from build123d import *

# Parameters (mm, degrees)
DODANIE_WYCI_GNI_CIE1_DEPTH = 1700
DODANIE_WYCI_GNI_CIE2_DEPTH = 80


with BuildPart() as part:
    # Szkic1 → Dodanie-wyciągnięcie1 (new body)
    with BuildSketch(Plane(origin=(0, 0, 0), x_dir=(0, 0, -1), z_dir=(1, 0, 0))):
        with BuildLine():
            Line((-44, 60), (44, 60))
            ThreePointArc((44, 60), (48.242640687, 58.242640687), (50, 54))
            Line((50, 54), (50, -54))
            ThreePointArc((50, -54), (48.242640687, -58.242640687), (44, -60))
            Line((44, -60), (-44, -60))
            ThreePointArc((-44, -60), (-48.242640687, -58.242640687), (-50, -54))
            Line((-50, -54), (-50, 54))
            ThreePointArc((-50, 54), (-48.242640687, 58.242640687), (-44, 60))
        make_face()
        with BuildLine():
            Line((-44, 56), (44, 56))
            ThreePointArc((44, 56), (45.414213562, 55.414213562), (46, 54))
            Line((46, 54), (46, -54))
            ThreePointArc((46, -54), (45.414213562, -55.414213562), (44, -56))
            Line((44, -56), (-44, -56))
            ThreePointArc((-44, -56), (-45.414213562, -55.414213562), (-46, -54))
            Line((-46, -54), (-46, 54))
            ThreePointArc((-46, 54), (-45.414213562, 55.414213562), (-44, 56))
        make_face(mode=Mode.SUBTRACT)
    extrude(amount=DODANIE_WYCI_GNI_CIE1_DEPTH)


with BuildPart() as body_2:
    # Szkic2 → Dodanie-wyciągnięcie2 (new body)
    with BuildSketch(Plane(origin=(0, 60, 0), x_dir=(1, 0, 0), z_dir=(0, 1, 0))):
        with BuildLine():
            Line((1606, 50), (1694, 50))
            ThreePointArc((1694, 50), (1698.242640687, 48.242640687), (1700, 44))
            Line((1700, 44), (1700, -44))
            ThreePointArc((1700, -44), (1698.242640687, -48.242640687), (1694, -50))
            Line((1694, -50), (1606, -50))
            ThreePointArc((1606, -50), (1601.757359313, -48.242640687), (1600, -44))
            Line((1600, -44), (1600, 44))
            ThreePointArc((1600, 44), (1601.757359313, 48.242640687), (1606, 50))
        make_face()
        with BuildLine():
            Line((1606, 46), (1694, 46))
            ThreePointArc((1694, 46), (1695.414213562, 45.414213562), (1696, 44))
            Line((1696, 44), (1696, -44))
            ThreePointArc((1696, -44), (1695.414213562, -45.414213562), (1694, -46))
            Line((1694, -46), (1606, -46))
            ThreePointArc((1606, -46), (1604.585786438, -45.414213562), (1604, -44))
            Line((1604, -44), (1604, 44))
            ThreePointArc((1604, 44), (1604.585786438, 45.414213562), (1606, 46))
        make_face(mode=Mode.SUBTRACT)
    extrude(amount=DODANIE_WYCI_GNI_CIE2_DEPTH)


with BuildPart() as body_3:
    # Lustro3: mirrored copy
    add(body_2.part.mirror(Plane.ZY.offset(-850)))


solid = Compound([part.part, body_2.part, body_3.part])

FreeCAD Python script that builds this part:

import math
import FreeCAD as App
import Part
import Sketcher

doc = App.newDocument("Part")
body = doc.addObject("PartDesign::Body", "Body")

# Sketch on YZ plane
sketch1 = doc.addObject("Sketcher::SketchObject", "Sketch")
body.addObject(sketch1)
sketch1.AttachmentSupport = (doc.YZ_Plane, [""])
sketch1.MapMode = "FlatFace"
sketch1.addGeometry([
    Part.LineSegment(App.Vector(60, -44, 0), App.Vector(60, 44, 0)),  # 0
    Part.ArcOfCircle(Part.Circle(App.Vector(54, 44, 0), App.Vector(0, 0, 1), 6), math.radians(0), math.radians(90)),  # 1
    Part.LineSegment(App.Vector(54, 50, 0), App.Vector(-54, 50, 0)),  # 2
    Part.ArcOfCircle(Part.Circle(App.Vector(-54, 44, 0), App.Vector(0, 0, 1), 6), math.radians(90), math.radians(180)),  # 3
    Part.LineSegment(App.Vector(-60, 44, 0), App.Vector(-60, -44, 0)),  # 4
    Part.ArcOfCircle(Part.Circle(App.Vector(-54, -44, 0), App.Vector(0, 0, 1), 6), math.radians(180), math.radians(270)),  # 5
    Part.LineSegment(App.Vector(-54, -50, 0), App.Vector(54, -50, 0)),  # 6
    Part.ArcOfCircle(Part.Circle(App.Vector(54, -44, 0), App.Vector(0, 0, 1), 6), math.radians(-90), math.radians(0)),  # 7
    Part.LineSegment(App.Vector(56, 44, 0), App.Vector(56, -44, 0)),  # 8
    Part.ArcOfCircle(Part.Circle(App.Vector(54, -44, 0), App.Vector(0, 0, 1), 2), math.radians(-90), math.radians(0)),  # 9
    Part.LineSegment(App.Vector(54, -46, 0), App.Vector(-54, -46, 0)),  # 10
    Part.ArcOfCircle(Part.Circle(App.Vector(-54, -44, 0), App.Vector(0, 0, 1), 2), math.radians(-180), math.radians(-90)),  # 11
    Part.LineSegment(App.Vector(-56, -44, 0), App.Vector(-56, 44, 0)),  # 12
    Part.ArcOfCircle(Part.Circle(App.Vector(-54, 44, 0), App.Vector(0, 0, 1), 2), math.radians(90), math.radians(180)),  # 13
    Part.LineSegment(App.Vector(-54, 46, 0), App.Vector(54, 46, 0)),  # 14
    Part.ArcOfCircle(Part.Circle(App.Vector(54, 44, 0), App.Vector(0, 0, 1), 2), math.radians(0), math.radians(90)),  # 15
], False)
sketch1.addConstraint([
    Sketcher.Constraint("Tangent", 0, 2, 1, 1),
    Sketcher.Constraint("Tangent", 1, 2, 2, 1),
    Sketcher.Constraint("Tangent", 2, 2, 3, 1),
    Sketcher.Constraint("Tangent", 3, 2, 4, 1),
    Sketcher.Constraint("Tangent", 4, 2, 5, 1),
    Sketcher.Constraint("Tangent", 5, 2, 6, 1),
    Sketcher.Constraint("Tangent", 6, 2, 7, 1),
    Sketcher.Constraint("Tangent", 7, 2, 0, 1),
    Sketcher.Constraint("Tangent", 8, 2, 9, 2),
    Sketcher.Constraint("Tangent", 9, 1, 10, 1),
    Sketcher.Constraint("Tangent", 10, 2, 11, 2),
    Sketcher.Constraint("Tangent", 11, 1, 12, 1),
    Sketcher.Constraint("Tangent", 12, 2, 13, 2),
    Sketcher.Constraint("Tangent", 13, 1, 14, 1),
    Sketcher.Constraint("Tangent", 14, 2, 15, 2),
    Sketcher.Constraint("Tangent", 15, 1, 8, 1),
    Sketcher.Constraint("Vertical", 0),
    Sketcher.Constraint("Horizontal", 2),
    Sketcher.Constraint("Vertical", 4),
    Sketcher.Constraint("Horizontal", 6),
    Sketcher.Constraint("Vertical", 8),
    Sketcher.Constraint("Horizontal", 10),
    Sketcher.Constraint("Vertical", 12),
    Sketcher.Constraint("Horizontal", 14),
    Sketcher.Constraint("Coincident", 9, 3, 7, 3),
    Sketcher.Constraint("Coincident", 11, 3, 5, 3),
    Sketcher.Constraint("Coincident", 13, 3, 3, 3),
    Sketcher.Constraint("Equal", 1, 3),
    Sketcher.Constraint("Equal", 3, 5),
    Sketcher.Constraint("Equal", 5, 7),
    Sketcher.Constraint("Equal", 13, 15),
    Sketcher.Constraint("Symmetric", 1, 3, 5, 3, -1, 1),
    Sketcher.Constraint("Radius", 1, 6.0),
    Sketcher.Constraint("Radius", 9, 2.0),
    Sketcher.Constraint("DistanceX", 2, 2, 2, 1, 108.0),
    Sketcher.Constraint("DistanceY", 0, 1, 0, 2, 88.0),
])
pad1 = doc.addObject("PartDesign::Pad", "Pad")
body.addObject(pad1)
pad1.Profile = sketch1
pad1.Length = 1700
body2 = doc.addObject("PartDesign::Body", "Body001")

# Sketch on XZ plane
sketch2 = doc.addObject("Sketcher::SketchObject", "Sketch001")
body2.addObject(sketch2)
sketch2.AttachmentSupport = (doc.getObject("XZ_Plane001"), [""])
sketch2.MapMode = "FlatFace"
sketch2.AttachmentOffset = App.Placement(App.Vector(0, 0, -60), App.Rotation())
sketch2.addGeometry([
    Part.LineSegment(App.Vector(1694, -50, 0), App.Vector(1606, -50, 0)),  # 0
    Part.ArcOfCircle(Part.Circle(App.Vector(1606, -44, 0), App.Vector(0, 0, 1), 6), math.radians(180), math.radians(270)),  # 1
    Part.LineSegment(App.Vector(1600, -44, 0), App.Vector(1600, 44, 0)),  # 2
    Part.ArcOfCircle(Part.Circle(App.Vector(1606, 44, 0), App.Vector(0, 0, 1), 6), math.radians(90), math.radians(180)),  # 3
    Part.LineSegment(App.Vector(1606, 50, 0), App.Vector(1694, 50, 0)),  # 4
    Part.ArcOfCircle(Part.Circle(App.Vector(1694, 44, 0), App.Vector(0, 0, 1), 6), math.radians(0), math.radians(90)),  # 5
    Part.LineSegment(App.Vector(1700, 44, 0), App.Vector(1700, -44, 0)),  # 6
    Part.ArcOfCircle(Part.Circle(App.Vector(1694, -44, 0), App.Vector(0, 0, 1), 6), math.radians(-90), math.radians(0)),  # 7
    Part.LineSegment(App.Vector(1606, -46, 0), App.Vector(1694, -46, 0)),  # 8
    Part.ArcOfCircle(Part.Circle(App.Vector(1694, -44, 0), App.Vector(0, 0, 1), 2), math.radians(-90), math.radians(0)),  # 9
    Part.LineSegment(App.Vector(1696, -44, 0), App.Vector(1696, 44, 0)),  # 10
    Part.ArcOfCircle(Part.Circle(App.Vector(1694, 44, 0), App.Vector(0, 0, 1), 2), math.radians(0), math.radians(90)),  # 11
    Part.LineSegment(App.Vector(1694, 46, 0), App.Vector(1606, 46, 0)),  # 12
    Part.ArcOfCircle(Part.Circle(App.Vector(1606, 44, 0), App.Vector(0, 0, 1), 2), math.radians(90), math.radians(180)),  # 13
    Part.LineSegment(App.Vector(1604, 44, 0), App.Vector(1604, -44, 0)),  # 14
    Part.ArcOfCircle(Part.Circle(App.Vector(1606, -44, 0), App.Vector(0, 0, 1), 2), math.radians(-180), math.radians(-90)),  # 15
], False)
sketch2.addConstraint([
    Sketcher.Constraint("Tangent", 0, 2, 1, 2),
    Sketcher.Constraint("Tangent", 1, 1, 2, 1),
    Sketcher.Constraint("Tangent", 2, 2, 3, 2),
    Sketcher.Constraint("Tangent", 3, 1, 4, 1),
    Sketcher.Constraint("Tangent", 4, 2, 5, 2),
    Sketcher.Constraint("Tangent", 5, 1, 6, 1),
    Sketcher.Constraint("Tangent", 6, 2, 7, 2),
    Sketcher.Constraint("Tangent", 7, 1, 0, 1),
    Sketcher.Constraint("Tangent", 8, 2, 9, 1),
    Sketcher.Constraint("Tangent", 9, 2, 10, 1),
    Sketcher.Constraint("Tangent", 10, 2, 11, 1),
    Sketcher.Constraint("Tangent", 11, 2, 12, 1),
    Sketcher.Constraint("Tangent", 12, 2, 13, 1),
    Sketcher.Constraint("Tangent", 13, 2, 14, 1),
    Sketcher.Constraint("Tangent", 14, 2, 15, 1),
    Sketcher.Constraint("Tangent", 15, 2, 8, 1),
    Sketcher.Constraint("Horizontal", 0),
    Sketcher.Constraint("Vertical", 2),
    Sketcher.Constraint("Horizontal", 4),
    Sketcher.Constraint("Vertical", 6),
    Sketcher.Constraint("Horizontal", 8),
    Sketcher.Constraint("Vertical", 10),
    Sketcher.Constraint("Horizontal", 12),
    Sketcher.Constraint("Vertical", 14),
    Sketcher.Constraint("Coincident", 9, 3, 7, 3),
    Sketcher.Constraint("Coincident", 11, 3, 5, 3),
    Sketcher.Constraint("Coincident", 13, 3, 3, 3),
    Sketcher.Constraint("Equal", 1, 3),
    Sketcher.Constraint("Equal", 3, 5),
    Sketcher.Constraint("Equal", 5, 7),
    Sketcher.Constraint("Equal", 13, 15),
    Sketcher.Constraint("Equal", 12, 2),
    Sketcher.Constraint("Radius", 1, 6.0),
    Sketcher.Constraint("Radius", 9, 2.0),
    Sketcher.Constraint("DistanceX", 0, 2, 0, 1, 88.0),
    Sketcher.Constraint("DistanceX", -1, 1, 1, 3, 1606.0),
    Sketcher.Constraint("DistanceY", 1, 3, -1, 1, 44.0),
])
pad2 = doc.addObject("PartDesign::Pad", "Pad001")
body2.addObject(pad2)
pad2.Profile = sketch2
pad2.Length = 80
pad2.Reversed = True
body3 = doc.addObject("PartDesign::Body", "Body002")
doc.recompute()

mirroring = doc.addObject("Part::Mirroring", "Mirroring")
mirroring.Source = body2
mirroring.Base = App.Vector(850, 0, 0)
mirroring.Normal = App.Vector(-1, 0, 0)
body3.BaseFeature = mirroring
doc.recompute()
mirroring.Visibility = False

doc.recompute()
